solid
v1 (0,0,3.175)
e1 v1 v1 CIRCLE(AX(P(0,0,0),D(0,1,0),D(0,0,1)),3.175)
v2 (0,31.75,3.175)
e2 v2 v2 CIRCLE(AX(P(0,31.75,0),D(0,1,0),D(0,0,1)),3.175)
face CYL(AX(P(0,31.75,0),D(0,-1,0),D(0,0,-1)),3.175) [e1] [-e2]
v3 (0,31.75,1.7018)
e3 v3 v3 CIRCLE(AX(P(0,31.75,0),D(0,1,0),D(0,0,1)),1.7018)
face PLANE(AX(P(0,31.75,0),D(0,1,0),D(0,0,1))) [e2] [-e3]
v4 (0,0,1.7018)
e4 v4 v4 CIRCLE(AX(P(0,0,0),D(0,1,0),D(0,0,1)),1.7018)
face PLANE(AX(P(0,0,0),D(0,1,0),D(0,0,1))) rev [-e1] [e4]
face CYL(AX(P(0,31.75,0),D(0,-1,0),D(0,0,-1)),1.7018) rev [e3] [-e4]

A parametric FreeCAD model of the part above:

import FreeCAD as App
import Part
import Sketcher
Q = App.Units.Quantity

doc = App.newDocument("Part")
params = doc.addObject("Spreadsheet::Sheet", "Params")
for row, (alias, value) in enumerate([
    ("sketch1_diameter", "0.25 in"),
    ("sketch1_diameter2", "0.134 in"),
    ("pad1_length", "1.25 in"),
], start=1):
    params.set(f"A{row}", alias)
    params.set(f"B{row}", "=" + value)
    params.setAlias(f"B{row}", alias)

body = doc.addObject("PartDesign::Body", "Body")

sketch1 = body.newObject("Sketcher::SketchObject", "Sketch")
sketch1.AttachmentSupport = (doc.getObject("XZ_Plane"), [""])
sketch1.MapMode = "FlatFace"
sketch1.addGeometry([
    Part.Circle(App.Vector(0, 0, 0), App.Vector(0, 0, 1), 3.2),
    Part.Circle(App.Vector(0, 0, 0), App.Vector(0, 0, 1), 1.7),
], False)
sketch1.addConstraint([
    Sketcher.Constraint("Coincident", 0, 3, -1, 1),
    Sketcher.Constraint("Coincident", 1, 3, -1, 1),
    Sketcher.Constraint("Diameter", 0, Q("0.25 in")),
    Sketcher.Constraint("Diameter", 1, Q("0.134 in")),
])
sketch1.setExpression("Constraints[2]", "Params.sketch1_diameter")
sketch1.setExpression("Constraints[3]", "Params.sketch1_diameter2")
pad1 = body.newObject("PartDesign::Pad", "Pad")
pad1.Profile = sketch1
pad1.setExpression("Length", "Params.pad1_length")
pad1.Reversed = True

doc.recompute()
